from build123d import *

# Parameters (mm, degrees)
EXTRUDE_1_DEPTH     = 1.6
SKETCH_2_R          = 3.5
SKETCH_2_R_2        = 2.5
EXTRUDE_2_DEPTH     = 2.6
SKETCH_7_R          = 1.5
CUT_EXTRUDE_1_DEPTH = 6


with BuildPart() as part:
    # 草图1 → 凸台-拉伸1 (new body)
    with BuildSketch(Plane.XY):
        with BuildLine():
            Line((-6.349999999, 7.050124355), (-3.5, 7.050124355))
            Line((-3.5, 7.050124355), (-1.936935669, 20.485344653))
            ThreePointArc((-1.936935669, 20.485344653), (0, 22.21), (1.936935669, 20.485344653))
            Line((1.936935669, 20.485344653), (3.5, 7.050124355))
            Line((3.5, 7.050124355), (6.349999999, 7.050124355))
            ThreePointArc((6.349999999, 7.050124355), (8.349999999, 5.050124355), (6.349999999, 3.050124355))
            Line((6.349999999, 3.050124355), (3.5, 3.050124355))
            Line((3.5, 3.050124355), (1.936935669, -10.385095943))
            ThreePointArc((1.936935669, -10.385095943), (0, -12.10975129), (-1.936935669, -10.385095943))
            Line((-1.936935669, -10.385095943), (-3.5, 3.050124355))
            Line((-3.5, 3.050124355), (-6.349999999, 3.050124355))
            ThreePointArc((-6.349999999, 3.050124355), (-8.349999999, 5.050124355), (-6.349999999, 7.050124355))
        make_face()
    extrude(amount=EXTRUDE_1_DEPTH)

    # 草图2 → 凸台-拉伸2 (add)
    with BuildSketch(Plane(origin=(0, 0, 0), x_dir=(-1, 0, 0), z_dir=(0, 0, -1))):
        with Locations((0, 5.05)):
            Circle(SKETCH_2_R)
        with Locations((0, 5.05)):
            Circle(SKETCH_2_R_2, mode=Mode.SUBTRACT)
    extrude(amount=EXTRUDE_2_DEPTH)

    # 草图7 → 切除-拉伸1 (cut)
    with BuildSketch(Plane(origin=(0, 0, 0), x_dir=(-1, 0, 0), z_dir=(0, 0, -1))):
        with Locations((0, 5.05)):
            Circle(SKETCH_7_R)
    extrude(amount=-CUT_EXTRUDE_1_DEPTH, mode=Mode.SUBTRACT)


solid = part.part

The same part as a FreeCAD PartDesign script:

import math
import FreeCAD as App
import Part
import Sketcher
from FreeCAD import Vector
Q = App.Units.Quantity

doc = App.newDocument("Part")
body = doc.addObject("PartDesign::Body", "Body")

sketch1 = body.newObject("Sketcher::SketchObject", "Sketch")
sketch1.AttachmentSupport = (doc.getObject("XY_Plane"), [""])
sketch1.MapMode = "FlatFace"
sketch1.addGeometry(Part.LineSegment(Vector(-3.5, 7.050124, 0), Vector(-6.35, 7.050124, 0)), False)
sketch1.addGeometry(Part.ArcOfCircle(Part.Circle(Vector(-6.35, 5.050124, 0), Vector(0, 0, 1), 2), math.radians(90), math.radians(270)), False)
sketch1.addGeometry(Part.LineSegment(Vector(-6.35, 3.050124, 0), Vector(-3.5, 3.050124, 0)), False)
sketch1.addGeometry(Part.LineSegment(Vector(-3.5, 3.050124, 0), Vector(-1.936936, -10.385096, 0)), False)
sketch1.addGeometry(Part.ArcOfCircle(Part.Circle(Vector(0, -10.159751, 0), Vector(0, 0, 1), 1.95), math.radians(-173.363995), math.radians(-6.636005)), False)
sketch1.addGeometry(Part.LineSegment(Vector(1.936936, -10.385096, 0), Vector(3.5, 3.050124, 0)), False)
sketch1.addGeometry(Part.LineSegment(Vector(3.5, 3.050124, 0), Vector(6.35, 3.050124, 0)), False)
sketch1.addGeometry(Part.ArcOfCircle(Part.Circle(Vector(6.35, 5.050124, 0), Vector(0, 0, 1), 2), math.radians(-90), math.radians(90)), False)
sketch1.addGeometry(Part.LineSegment(Vector(6.35, 7.050124, 0), Vector(3.5, 7.050124, 0)), False)
sketch1.addGeometry(Part.LineSegment(Vector(3.5, 7.050124, 0), Vector(1.936936, 20.485345, 0)), False)
sketch1.addGeometry(Part.ArcOfCircle(Part.Circle(Vector(0, 20.26, 0), Vector(0, 0, 1), 1.95), math.radians(6.636005), math.radians(173.363995)), False)
sketch1.addGeometry(Part.LineSegment(Vector(-1.936936, 20.485345, 0), Vector(-3.5, 7.050124, 0)), False)
sketch1.addConstraint(Sketcher.Constraint("Tangent", 0, 2, 1, 1))
sketch1.addConstraint(Sketcher.Constraint("Tangent", 1, 2, 2, 1))
sketch1.addConstraint(Sketcher.Constraint("Coincident", 2, 2, 3, 1))
sketch1.addConstraint(Sketcher.Constraint("Tangent", 3, 2, 4, 1))
sketch1.addConstraint(Sketcher.Constraint("Tangent", 4, 2, 5, 1))
sketch1.addConstraint(Sketcher.Constraint("Coincident", 5, 2, 6, 1))
sketch1.addConstraint(Sketcher.Constraint("Tangent", 6, 2, 7, 1))
sketch1.addConstraint(Sketcher.Constraint("Tangent", 7, 2, 8, 1))
sketch1.addConstraint(Sketcher.Constraint("Coincident", 8, 2, 9, 1))
sketch1.addConstraint(Sketcher.Constraint("Tangent", 9, 2, 10, 1))
sketch1.addConstraint(Sketcher.Constraint("Tangent", 10, 2, 11, 1))
sketch1.addConstraint(Sketcher.Constraint("Coincident", 11, 2, 0, 1))
sketch1.addConstraint(Sketcher.Constraint("Horizontal", 0))
sketch1.addConstraint(Sketcher.Constraint("Horizontal", 2))
sketch1.addConstraint(Sketcher.Constraint("Horizontal", 6))
sketch1.addConstraint(Sketcher.Constraint("Horizontal", 8))
sketch1.addConstraint(Sketcher.Constraint("Equal", 1, 7))
sketch1.addConstraint(Sketcher.Constraint("Equal", 4, 10))
sketch1.addConstraint(Sketcher.Constraint("Symmetric", 1, 3, 7, 3, -2))
sketch1.addConstraint(Sketcher.Constraint("Symmetric", 3, 2, 4, 2, -2))
sketch1.addConstraint(Sketcher.Constraint("Symmetric", 9, 2, 10, 2, -2))
sketch1.addConstraint(Sketcher.Constraint("Parallel", 3, 9))
sketch1.addConstraint(Sketcher.Constraint("Vertical", 5, 2, 8, 2))
sketch1.addConstraint(Sketcher.Constraint("Radius", 1, Q("2 mm")))
sketch1.addConstraint(Sketcher.Constraint("Radius", 4, Q("1.95 mm")))
sketch1.addConstraint(Sketcher.Constraint("DistanceX", 2, 2, 5, 2, Q("7 mm")))
sketch1.addConstraint(Sketcher.Constraint("DistanceX", 0, 2, 0, 1, Q("2.85 mm")))
sketch1.addConstraint(Sketcher.Constraint("DistanceY", -1, 1, 10, 3, Q("20.26 mm")))
sketch1.addConstraint(Sketcher.Constraint("Distance", 3, Q("13.525839 mm")))
pad1 = body.newObject("PartDesign::Pad", "Pad")
pad1.Profile = sketch1
pad1.Length = 1.6

sketch2 = body.newObject("Sketcher::SketchObject", "Sketch001")
sketch2.AttachmentSupport = (doc.getObject("XY_Plane"), [""])
sketch2.MapMode = "FlatFace"
sketch2.addGeometry(Part.Circle(Vector(0, 5.05, 0), Vector(0, 0, 1), 3.5), False)
sketch2.addGeometry(Part.Circle(Vector(0, 5.05, 0), Vector(0, 0, 1), 2.5), False)
sketch2.addConstraint(Sketcher.Constraint("Coincident", 1, 3, 0, 3))
sketch2.addConstraint(Sketcher.Constraint("PointOnObject", 0, 3, -2))
sketch2.addConstraint(Sketcher.Constraint("Diameter", 0, Q("7 mm")))
sketch2.addConstraint(Sketcher.Constraint("Diameter", 1, Q("5 mm")))
sketch2.addConstraint(Sketcher.Constraint("DistanceY", -1, 1, 0, 3, Q("5.05 mm")))
pad2 = body.newObject("PartDesign::Pad", "Pad001")
pad2.Profile = sketch2
pad2.Length = 2.6
pad2.Reversed = True

sketch3 = body.newObject("Sketcher::SketchObject", "Sketch002")
sketch3.AttachmentSupport = (doc.getObject("XY_Plane"), [""])
sketch3.MapMode = "FlatFace"
sketch3.addGeometry(Part.Circle(Vector(0, 5.05, 0), Vector(0, 0, 1), 1.5), False)
sketch3.addConstraint(Sketcher.Constraint("PointOnObject", 0, 3, -2))
sketch3.addConstraint(Sketcher.Constraint("Diameter", 0, Q("3 mm")))
sketch3.addConstraint(Sketcher.Constraint("DistanceY", -1, 1, 0, 3, Q("5.05 mm")))
pocket1 = body.newObject("PartDesign::Pocket", "Pocket")
pocket1.Profile = sketch3
pocket1.Length = 6
pocket1.Reversed = True

doc.recompute()
